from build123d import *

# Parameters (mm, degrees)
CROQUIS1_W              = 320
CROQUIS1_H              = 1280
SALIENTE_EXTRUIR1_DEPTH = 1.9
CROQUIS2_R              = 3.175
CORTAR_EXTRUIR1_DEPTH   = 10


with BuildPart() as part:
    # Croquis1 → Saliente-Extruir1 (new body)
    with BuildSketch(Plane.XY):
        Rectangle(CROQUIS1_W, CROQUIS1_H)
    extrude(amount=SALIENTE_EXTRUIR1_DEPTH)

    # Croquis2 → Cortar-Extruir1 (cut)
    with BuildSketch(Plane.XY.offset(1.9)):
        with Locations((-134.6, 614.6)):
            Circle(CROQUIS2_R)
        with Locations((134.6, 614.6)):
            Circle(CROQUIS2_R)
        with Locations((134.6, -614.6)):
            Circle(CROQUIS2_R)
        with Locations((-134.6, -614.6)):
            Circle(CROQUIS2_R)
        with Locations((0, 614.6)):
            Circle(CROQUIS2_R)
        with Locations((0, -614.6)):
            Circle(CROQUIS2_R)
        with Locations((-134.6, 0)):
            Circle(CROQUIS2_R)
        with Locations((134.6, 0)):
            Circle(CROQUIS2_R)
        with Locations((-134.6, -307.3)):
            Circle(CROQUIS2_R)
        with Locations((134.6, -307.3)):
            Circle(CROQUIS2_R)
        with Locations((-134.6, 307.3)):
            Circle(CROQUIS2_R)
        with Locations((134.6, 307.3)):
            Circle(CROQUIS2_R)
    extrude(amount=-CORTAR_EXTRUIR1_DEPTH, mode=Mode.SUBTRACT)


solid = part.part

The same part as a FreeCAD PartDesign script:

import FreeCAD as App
import Part
import Sketcher
from FreeCAD import Vector


def add_polygon(sketch, points):
    """Adds a closed chain of lines whose ends are joined by coincident constraints."""
    first, n = sketch.GeometryCount, len(points)
    for a, b in zip(points, points[1:] + points[:1]):
        sketch.addGeometry(Part.LineSegment(App.Vector(*a, 0), App.Vector(*b, 0)), False)
    for i in range(n):
        sketch.addConstraint(Sketcher.Constraint("Coincident", first + i, 2, first + (i + 1) % n, 1))

doc = App.newDocument("Part")
body = doc.addObject("PartDesign::Body", "Body")

sketch1 = body.newObject("Sketcher::SketchObject", "Sketch")
sketch1.AttachmentSupport = (doc.getObject("XY_Plane"), [""])
sketch1.MapMode = "FlatFace"
add_polygon(sketch1, [(-160, 640), (-160, -640), (160, -640), (160, 640)])
sketch1.addConstraint([
    Sketcher.Constraint("Vertical", 0),
    Sketcher.Constraint("Horizontal", 1),
    Sketcher.Constraint("Vertical", 2),
    Sketcher.Constraint("Horizontal", 3),
    Sketcher.Constraint("Symmetric", 0, 2, 2, 2, -1, 1),
    Sketcher.Constraint("DistanceX", 1, 1, 1, 2, 320.0),
    Sketcher.Constraint("DistanceY", 0, 2, 0, 1, 1280.0),
])
pad1 = body.newObject("PartDesign::Pad", "Pad")
pad1.Profile = sketch1
pad1.Length = 1.9

sketch2 = body.newObject("Sketcher::SketchObject", "Sketch001")
sketch2.AttachmentSupport = (doc.getObject("XY_Plane"), [""])
sketch2.MapMode = "FlatFace"
sketch2.AttachmentOffset = App.Placement(Vector(0, 0, 1.9), App.Rotation())
sketch2.addGeometry([
    Part.Circle(Vector(-134.6, 614.6, 0), Vector(0, 0, 1), 3.2),
    Part.Circle(Vector(134.6, 614.6, 0), Vector(0, 0, 1), 3.2),
    Part.Circle(Vector(134.6, -614.6, 0), Vector(0, 0, 1), 3.2),
    Part.Circle(Vector(-134.6, -614.6, 0), Vector(0, 0, 1), 3.2),
    Part.Circle(Vector(0, 614.6, 0), Vector(0, 0, 1), 3.2),
    Part.Circle(Vector(0, -614.6, 0), Vector(0, 0, 1), 3.2),
    Part.Circle(Vector(-134.6, 0, 0), Vector(0, 0, 1), 3.2),
    Part.Circle(Vector(134.6, 0, 0), Vector(0, 0, 1), 3.2),
    Part.Circle(Vector(-134.6, -307.3, 0), Vector(0, 0, 1), 3.2),
    Part.Circle(Vector(134.6, -307.3, 0), Vector(0, 0, 1), 3.2),
    Part.Circle(Vector(-134.6, 307.3, 0), Vector(0, 0, 1), 3.2),
    Part.Circle(Vector(134.6, 307.3, 0), Vector(0, 0, 1), 3.2),
], False)
sketch2.addConstraint([
    Sketcher.Constraint("Equal", 0, 1),
    Sketcher.Constraint("Equal", 1, 2),
    Sketcher.Constraint("Equal", 2, 3),
    Sketcher.Constraint("Equal", 3, 4),
    Sketcher.Constraint("Equal", 4, 5),
    Sketcher.Constraint("Equal", 5, 6),
    Sketcher.Constraint("Equal", 6, 7),
    Sketcher.Constraint("Equal", 7, 8),
    Sketcher.Constraint("Equal", 8, 9),
    Sketcher.Constraint("Equal", 9, 10),
    Sketcher.Constraint("Equal", 10, 11),
    Sketcher.Constraint("Symmetric", 0, 3, 2, 3, -1, 1),
    Sketcher.Constraint("Symmetric", 1, 3, 3, 3, -1, 1),
    Sketcher.Constraint("Symmetric", 4, 3, 5, 3, -1, 1),
    Sketcher.Constraint("Symmetric", 6, 3, 7, 3, -1, 1),
    Sketcher.Constraint("Symmetric", 9, 3, 10, 3, -1, 1),
    Sketcher.Constraint("Symmetric", 8, 3, 11, 3, -1, 1),
    Sketcher.Constraint("Symmetric", 0, 3, 1, 3, -2),
    Sketcher.Constraint("Symmetric", 8, 3, 9, 3, -2),
    Sketcher.Constraint("PointOnObject", 4, 3, -2),
    Sketcher.Constraint("PointOnObject", 6, 3, -1),
    Sketcher.Constraint("Horizontal", 1, 3, 4, 3),
    Sketcher.Constraint("Vertical", 3, 3, 6, 3),
    Sketcher.Constraint("Vertical", 6, 3, 8, 3),
    Sketcher.Constraint("Diameter", 0, 6.35),
    Sketcher.Constraint("DistanceX", 0, 3, -1, 1, 134.6),
    Sketcher.Constraint("DistanceY", -1, 1, 0, 3, 614.6),
    Sketcher.Constraint("DistanceY", 8, 3, -1, 1, 307.3),
])
pocket1 = body.newObject("PartDesign::Pocket", "Pocket")
pocket1.Profile = sketch2
pocket1.Length = 10

doc.recompute()
